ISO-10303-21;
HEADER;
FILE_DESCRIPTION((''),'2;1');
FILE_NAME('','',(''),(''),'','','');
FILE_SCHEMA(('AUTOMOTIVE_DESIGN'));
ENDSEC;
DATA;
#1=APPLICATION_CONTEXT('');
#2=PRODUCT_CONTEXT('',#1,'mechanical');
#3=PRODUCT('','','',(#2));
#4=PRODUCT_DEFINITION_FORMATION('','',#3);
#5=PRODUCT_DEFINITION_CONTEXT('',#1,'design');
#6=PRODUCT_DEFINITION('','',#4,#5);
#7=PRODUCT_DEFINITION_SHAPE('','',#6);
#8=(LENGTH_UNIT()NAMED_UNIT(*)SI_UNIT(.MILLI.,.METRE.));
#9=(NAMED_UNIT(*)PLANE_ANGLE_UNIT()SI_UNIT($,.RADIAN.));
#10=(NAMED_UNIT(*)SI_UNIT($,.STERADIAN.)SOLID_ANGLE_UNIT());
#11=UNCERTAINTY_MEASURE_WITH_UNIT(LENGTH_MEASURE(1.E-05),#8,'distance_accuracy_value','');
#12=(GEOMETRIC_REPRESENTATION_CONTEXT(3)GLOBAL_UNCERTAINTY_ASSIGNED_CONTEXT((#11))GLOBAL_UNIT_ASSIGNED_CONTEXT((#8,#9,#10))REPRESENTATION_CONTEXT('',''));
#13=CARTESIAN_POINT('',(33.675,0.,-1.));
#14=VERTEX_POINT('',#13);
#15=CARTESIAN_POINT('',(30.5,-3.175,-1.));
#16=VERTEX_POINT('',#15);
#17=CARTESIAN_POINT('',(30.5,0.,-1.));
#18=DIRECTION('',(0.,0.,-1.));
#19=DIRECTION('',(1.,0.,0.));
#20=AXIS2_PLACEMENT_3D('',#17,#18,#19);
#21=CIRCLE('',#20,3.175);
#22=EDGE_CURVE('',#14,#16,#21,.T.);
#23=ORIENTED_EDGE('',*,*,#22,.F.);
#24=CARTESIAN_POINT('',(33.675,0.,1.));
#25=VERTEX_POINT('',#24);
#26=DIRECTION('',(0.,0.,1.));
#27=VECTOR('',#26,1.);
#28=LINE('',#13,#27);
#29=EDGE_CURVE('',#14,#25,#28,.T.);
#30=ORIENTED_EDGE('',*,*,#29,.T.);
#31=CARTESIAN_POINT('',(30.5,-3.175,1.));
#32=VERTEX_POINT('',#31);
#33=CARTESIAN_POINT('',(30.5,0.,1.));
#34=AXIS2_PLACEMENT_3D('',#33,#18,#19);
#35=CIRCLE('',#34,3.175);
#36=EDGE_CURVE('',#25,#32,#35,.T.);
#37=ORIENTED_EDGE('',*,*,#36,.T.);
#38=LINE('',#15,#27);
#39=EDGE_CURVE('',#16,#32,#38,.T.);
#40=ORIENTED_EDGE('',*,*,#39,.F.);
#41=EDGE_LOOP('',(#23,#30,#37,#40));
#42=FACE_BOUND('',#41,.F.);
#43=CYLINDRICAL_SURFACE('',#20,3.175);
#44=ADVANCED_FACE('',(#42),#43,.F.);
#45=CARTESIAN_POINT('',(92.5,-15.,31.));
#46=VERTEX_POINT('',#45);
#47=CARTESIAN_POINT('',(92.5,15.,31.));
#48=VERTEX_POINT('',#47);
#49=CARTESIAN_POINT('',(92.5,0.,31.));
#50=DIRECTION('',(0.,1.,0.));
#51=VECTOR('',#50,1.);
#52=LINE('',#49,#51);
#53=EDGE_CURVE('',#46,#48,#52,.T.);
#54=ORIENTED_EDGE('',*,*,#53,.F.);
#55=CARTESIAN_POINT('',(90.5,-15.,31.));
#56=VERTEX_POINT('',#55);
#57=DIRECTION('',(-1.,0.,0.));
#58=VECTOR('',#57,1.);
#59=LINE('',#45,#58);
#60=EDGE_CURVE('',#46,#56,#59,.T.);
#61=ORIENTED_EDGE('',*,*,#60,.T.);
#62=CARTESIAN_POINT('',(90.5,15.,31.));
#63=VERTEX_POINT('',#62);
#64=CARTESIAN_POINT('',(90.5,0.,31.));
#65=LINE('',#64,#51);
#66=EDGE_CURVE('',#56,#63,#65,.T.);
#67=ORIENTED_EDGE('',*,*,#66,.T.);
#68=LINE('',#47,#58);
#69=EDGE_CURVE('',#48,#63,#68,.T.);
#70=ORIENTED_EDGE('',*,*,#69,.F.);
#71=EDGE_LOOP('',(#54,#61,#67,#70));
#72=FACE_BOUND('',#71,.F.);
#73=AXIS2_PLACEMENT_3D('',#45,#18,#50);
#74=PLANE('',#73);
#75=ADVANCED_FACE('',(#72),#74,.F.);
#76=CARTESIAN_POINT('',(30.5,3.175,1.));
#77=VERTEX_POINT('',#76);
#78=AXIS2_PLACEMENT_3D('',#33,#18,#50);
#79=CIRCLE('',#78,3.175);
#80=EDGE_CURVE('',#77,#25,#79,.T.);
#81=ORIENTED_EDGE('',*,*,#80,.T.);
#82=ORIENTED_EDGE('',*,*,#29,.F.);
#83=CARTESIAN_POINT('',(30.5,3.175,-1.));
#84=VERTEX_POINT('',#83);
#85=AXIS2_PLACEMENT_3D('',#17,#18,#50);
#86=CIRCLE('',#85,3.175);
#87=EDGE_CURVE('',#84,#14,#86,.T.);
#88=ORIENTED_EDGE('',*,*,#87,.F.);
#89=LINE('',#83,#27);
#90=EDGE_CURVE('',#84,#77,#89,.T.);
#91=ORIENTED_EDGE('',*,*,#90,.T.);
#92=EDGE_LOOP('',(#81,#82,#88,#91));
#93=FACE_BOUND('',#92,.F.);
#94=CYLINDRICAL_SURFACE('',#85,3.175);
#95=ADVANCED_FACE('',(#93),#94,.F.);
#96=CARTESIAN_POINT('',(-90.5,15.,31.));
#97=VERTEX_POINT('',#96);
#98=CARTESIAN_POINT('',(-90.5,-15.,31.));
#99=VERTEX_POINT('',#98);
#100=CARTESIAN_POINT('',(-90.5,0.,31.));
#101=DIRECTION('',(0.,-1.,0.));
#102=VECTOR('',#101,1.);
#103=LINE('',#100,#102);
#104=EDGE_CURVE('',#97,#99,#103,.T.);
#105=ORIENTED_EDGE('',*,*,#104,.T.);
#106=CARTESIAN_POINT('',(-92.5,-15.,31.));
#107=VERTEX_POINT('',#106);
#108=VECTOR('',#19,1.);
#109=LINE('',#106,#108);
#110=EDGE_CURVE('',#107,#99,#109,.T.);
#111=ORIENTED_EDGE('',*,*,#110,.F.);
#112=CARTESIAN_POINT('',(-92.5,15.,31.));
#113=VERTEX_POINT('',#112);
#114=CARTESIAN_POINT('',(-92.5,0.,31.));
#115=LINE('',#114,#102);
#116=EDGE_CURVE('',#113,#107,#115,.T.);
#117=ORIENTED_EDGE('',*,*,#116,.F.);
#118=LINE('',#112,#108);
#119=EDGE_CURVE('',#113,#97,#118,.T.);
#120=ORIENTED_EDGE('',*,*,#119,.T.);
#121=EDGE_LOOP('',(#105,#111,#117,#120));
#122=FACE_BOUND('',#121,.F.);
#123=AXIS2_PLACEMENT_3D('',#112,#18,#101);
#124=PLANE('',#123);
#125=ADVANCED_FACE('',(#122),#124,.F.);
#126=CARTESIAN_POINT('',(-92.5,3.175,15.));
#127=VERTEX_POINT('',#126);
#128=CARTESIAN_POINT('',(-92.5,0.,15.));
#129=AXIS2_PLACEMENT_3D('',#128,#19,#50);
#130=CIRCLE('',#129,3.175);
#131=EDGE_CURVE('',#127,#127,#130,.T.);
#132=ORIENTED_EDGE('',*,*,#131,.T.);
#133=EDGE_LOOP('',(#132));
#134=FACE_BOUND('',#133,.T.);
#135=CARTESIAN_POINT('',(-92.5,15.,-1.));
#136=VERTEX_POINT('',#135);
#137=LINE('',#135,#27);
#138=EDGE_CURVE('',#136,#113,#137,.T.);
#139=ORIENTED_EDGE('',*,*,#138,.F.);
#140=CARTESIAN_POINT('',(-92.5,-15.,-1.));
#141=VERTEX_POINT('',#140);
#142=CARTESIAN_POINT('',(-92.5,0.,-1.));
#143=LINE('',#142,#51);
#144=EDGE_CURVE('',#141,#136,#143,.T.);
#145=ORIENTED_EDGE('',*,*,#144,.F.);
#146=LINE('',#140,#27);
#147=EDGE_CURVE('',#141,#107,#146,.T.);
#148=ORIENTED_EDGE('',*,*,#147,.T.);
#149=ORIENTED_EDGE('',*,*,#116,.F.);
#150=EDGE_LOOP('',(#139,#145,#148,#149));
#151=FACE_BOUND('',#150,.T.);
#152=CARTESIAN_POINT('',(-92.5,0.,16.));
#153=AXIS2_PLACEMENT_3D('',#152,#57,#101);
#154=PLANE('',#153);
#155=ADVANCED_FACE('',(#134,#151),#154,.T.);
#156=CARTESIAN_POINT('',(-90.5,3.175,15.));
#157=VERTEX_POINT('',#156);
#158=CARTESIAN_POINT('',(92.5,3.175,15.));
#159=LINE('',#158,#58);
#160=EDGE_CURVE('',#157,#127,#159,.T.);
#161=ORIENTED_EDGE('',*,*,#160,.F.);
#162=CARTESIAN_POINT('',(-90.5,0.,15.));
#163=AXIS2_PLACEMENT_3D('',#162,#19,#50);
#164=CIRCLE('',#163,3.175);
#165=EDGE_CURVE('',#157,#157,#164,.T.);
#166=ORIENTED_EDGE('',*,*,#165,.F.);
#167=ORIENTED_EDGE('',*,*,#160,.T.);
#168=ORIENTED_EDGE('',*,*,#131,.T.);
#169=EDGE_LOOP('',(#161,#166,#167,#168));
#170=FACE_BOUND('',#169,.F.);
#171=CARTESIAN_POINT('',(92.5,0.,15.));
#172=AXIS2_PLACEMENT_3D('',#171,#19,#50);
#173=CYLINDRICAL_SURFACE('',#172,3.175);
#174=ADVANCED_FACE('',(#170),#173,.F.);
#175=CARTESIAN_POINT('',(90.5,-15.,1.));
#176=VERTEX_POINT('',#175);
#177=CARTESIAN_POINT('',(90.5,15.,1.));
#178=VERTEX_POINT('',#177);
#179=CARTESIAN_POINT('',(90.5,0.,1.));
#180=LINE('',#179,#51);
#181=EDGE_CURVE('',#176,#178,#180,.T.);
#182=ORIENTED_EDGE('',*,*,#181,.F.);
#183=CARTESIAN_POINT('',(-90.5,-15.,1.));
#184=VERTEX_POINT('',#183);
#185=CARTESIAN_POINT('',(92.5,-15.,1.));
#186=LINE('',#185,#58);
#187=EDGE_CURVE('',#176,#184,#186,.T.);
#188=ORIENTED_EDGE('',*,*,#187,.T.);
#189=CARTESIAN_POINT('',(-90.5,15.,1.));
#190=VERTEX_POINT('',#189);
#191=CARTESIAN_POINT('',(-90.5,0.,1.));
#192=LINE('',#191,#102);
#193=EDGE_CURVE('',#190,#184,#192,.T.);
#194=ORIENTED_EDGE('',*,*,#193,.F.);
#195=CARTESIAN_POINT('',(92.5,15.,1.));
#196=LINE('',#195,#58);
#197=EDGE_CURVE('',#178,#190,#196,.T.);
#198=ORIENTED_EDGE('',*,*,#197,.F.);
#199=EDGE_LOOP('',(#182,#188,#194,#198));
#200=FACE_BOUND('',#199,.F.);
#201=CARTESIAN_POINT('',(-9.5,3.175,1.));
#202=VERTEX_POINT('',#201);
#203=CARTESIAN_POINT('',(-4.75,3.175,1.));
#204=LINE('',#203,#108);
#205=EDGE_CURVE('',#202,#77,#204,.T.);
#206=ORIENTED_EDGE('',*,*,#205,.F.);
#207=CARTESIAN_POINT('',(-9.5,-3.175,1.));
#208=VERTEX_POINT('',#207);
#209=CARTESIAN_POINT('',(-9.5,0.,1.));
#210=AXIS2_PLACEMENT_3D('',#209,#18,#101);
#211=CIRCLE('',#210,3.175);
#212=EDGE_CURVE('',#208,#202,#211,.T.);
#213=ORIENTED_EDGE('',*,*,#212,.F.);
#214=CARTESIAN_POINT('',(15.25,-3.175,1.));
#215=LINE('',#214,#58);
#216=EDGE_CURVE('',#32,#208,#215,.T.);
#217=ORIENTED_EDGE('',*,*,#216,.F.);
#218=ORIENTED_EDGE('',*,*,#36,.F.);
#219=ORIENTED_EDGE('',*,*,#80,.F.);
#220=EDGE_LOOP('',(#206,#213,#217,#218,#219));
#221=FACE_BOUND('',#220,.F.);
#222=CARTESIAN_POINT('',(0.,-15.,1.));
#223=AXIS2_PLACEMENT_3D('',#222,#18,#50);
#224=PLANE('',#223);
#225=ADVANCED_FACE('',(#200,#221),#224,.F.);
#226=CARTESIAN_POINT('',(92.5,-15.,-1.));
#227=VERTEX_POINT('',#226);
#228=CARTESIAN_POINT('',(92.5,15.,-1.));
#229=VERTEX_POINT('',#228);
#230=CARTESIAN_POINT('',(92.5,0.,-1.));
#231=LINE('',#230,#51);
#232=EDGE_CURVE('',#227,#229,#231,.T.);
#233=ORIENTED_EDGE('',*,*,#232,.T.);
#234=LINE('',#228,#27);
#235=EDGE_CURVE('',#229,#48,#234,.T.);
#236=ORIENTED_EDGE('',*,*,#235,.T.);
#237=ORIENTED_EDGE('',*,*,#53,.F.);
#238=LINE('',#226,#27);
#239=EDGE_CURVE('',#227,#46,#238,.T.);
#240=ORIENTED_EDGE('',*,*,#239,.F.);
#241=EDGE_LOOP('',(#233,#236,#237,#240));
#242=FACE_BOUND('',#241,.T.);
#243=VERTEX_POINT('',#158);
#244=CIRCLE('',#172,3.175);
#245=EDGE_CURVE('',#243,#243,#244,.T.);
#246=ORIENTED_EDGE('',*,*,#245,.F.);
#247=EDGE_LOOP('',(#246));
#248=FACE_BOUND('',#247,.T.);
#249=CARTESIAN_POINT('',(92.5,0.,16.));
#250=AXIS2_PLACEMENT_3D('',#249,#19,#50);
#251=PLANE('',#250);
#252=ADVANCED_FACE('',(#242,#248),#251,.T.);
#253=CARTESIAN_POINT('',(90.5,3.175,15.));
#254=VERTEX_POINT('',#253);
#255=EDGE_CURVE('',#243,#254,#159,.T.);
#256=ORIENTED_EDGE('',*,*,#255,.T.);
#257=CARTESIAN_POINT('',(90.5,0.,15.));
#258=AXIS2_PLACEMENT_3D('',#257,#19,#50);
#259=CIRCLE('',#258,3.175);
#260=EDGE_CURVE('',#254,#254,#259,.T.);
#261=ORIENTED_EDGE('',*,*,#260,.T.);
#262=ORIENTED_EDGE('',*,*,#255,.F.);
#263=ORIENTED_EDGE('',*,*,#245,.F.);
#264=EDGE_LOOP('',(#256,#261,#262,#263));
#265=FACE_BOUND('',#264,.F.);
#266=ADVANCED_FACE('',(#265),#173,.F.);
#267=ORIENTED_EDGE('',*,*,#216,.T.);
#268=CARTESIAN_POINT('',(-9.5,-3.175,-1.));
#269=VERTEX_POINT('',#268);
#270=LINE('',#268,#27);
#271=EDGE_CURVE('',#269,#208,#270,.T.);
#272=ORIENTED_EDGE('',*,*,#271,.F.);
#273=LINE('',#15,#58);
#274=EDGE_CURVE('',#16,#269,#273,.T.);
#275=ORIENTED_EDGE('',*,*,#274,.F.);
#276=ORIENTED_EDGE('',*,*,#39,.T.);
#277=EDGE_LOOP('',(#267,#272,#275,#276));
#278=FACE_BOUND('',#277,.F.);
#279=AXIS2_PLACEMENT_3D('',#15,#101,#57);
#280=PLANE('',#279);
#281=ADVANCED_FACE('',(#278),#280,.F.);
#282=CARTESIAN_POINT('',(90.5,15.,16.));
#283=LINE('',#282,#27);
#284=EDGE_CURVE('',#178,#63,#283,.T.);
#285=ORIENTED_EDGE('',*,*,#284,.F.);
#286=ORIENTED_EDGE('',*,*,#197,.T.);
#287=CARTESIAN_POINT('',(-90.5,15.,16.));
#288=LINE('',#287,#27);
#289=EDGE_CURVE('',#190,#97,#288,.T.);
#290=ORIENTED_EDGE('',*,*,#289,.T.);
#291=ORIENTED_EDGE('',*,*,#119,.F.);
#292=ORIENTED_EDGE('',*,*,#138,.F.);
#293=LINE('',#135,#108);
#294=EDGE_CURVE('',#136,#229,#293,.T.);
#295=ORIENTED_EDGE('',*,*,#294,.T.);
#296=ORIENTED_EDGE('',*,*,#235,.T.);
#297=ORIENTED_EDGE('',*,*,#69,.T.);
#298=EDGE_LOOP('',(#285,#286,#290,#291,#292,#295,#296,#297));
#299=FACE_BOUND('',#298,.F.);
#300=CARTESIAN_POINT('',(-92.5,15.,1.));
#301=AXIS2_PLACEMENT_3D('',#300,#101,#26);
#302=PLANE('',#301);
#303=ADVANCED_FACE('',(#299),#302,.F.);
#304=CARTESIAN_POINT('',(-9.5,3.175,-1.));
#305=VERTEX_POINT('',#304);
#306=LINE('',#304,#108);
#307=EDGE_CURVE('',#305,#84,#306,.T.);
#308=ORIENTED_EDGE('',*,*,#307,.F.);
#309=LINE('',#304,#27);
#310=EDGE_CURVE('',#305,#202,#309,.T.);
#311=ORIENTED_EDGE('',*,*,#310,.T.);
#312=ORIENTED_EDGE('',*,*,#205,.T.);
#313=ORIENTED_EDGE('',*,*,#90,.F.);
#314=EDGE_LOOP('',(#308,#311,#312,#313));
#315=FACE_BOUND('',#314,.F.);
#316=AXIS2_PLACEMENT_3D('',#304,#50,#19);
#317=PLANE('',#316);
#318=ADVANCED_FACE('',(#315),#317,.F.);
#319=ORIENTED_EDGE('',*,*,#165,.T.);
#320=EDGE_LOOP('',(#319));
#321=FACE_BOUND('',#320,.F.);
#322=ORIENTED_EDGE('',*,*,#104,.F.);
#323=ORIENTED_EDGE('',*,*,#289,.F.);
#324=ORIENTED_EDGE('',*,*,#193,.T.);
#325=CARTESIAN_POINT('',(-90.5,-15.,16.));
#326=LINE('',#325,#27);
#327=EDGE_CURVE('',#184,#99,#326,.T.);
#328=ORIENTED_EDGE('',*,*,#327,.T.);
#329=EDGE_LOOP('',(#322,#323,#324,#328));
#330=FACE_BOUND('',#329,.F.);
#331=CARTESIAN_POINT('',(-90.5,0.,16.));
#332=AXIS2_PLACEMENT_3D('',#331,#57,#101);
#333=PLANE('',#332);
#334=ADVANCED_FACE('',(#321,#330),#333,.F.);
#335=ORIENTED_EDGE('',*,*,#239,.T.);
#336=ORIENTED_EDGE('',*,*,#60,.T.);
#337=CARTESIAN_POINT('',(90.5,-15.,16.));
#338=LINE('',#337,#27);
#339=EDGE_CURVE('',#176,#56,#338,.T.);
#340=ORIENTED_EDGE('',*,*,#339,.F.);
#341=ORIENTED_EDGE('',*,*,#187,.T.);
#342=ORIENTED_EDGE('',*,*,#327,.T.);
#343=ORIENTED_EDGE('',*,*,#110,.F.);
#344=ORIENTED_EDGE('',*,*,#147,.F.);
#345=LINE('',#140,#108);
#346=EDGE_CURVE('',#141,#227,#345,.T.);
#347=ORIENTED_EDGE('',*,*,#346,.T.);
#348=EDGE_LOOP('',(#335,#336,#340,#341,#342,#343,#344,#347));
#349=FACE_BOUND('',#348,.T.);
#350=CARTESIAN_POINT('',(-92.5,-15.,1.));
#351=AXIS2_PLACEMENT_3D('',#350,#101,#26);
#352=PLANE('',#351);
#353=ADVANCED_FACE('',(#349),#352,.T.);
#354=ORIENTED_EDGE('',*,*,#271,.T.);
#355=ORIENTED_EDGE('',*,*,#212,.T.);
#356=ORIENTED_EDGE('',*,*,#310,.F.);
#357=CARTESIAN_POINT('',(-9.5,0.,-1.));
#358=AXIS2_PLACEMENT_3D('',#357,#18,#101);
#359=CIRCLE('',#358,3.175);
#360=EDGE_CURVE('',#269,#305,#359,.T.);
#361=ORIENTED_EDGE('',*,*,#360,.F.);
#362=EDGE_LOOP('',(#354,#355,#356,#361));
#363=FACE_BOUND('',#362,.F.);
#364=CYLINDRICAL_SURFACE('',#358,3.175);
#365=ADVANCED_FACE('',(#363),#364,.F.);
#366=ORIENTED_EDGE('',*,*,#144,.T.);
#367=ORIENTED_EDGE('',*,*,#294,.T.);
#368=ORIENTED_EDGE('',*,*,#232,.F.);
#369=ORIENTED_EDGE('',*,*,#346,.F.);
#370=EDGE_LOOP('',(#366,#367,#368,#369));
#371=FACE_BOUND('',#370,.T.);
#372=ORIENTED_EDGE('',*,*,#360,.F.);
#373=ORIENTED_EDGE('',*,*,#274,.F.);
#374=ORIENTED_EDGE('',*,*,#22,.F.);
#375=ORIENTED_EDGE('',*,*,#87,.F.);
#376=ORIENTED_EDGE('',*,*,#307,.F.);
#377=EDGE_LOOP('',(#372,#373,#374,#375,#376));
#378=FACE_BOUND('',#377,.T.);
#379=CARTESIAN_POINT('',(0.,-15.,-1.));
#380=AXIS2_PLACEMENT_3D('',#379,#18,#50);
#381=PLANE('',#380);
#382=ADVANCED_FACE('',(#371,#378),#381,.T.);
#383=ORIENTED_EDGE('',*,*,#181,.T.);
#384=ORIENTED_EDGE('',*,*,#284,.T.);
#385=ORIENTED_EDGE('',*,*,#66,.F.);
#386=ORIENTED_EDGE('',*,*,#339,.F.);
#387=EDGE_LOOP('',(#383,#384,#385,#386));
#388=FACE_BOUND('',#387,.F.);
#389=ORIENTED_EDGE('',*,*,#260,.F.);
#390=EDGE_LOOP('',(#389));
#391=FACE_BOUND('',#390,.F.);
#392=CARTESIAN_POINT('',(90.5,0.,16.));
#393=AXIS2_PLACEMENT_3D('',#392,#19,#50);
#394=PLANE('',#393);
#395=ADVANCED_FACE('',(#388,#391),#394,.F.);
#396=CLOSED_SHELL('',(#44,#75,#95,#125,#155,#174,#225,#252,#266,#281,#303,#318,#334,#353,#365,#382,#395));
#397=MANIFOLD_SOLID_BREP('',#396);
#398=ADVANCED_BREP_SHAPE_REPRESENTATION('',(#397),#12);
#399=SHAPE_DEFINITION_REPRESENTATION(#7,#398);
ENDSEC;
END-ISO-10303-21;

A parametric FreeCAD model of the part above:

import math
import FreeCAD as App
import Part
import Sketcher
Q = App.Units.Quantity

doc = App.newDocument("Part")
params = doc.addObject("Spreadsheet::Sheet", "Params")
for row, (alias, value) in enumerate([
    ("sketch1_width", "30 mm"),
    ("sketch1_height", "2 mm"),
    ("pad1_length", "185 mm"),
    ("sketch2_width", "30 mm"),
    ("pad2_length", "2 mm"),
    ("sketch3_width", "30 mm"),
    ("pad3_length", "2 mm"),
    ("sketch4_diameter", "6.35 mm"),
    ("pocket1_length", "250 mm"),
    ("sketch5_width", "40 mm"),
    ("pocket2_length", "25 mm"),
], start=1):
    params.set(f"A{row}", alias)
    params.set(f"B{row}", "=" + value)
    params.setAlias(f"B{row}", alias)

body = doc.addObject("PartDesign::Body", "Body")

# Sketch on YZ plane
sketch1 = doc.addObject("Sketcher::SketchObject", "Sketch")
body.addObject(sketch1)
sketch1.AttachmentSupport = (doc.YZ_Plane, [""])
sketch1.MapMode = "FlatFace"
sketch1.addGeometry(Part.LineSegment(App.Vector(-15, 1, 0), App.Vector(-15, -1, 0)), False)
sketch1.addGeometry(Part.LineSegment(App.Vector(-15, -1, 0), App.Vector(15, -1, 0)), False)
sketch1.addGeometry(Part.LineSegment(App.Vector(15, -1, 0), App.Vector(15, 1, 0)), False)
sketch1.addGeometry(Part.LineSegment(App.Vector(15, 1, 0), App.Vector(-15, 1, 0)), False)
sketch1.addConstraint(Sketcher.Constraint("Coincident", 0, 2, 1, 1))
sketch1.addConstraint(Sketcher.Constraint("Coincident", 1, 2, 2, 1))
sketch1.addConstraint(Sketcher.Constraint("Coincident", 2, 2, 3, 1))
sketch1.addConstraint(Sketcher.Constraint("Coincident", 3, 2, 0, 1))
sketch1.addConstraint(Sketcher.Constraint("Vertical", 0))
sketch1.addConstraint(Sketcher.Constraint("Horizontal", 1))
sketch1.addConstraint(Sketcher.Constraint("Vertical", 2))
sketch1.addConstraint(Sketcher.Constraint("Horizontal", 3))
sketch1.addConstraint(Sketcher.Constraint("Symmetric", 0, 2, 2, 2, -1, 1))
sketch1.addConstraint(Sketcher.Constraint("DistanceX", 1, 1, 1, 2, Q("30 mm")))
sketch1.addConstraint(Sketcher.Constraint("DistanceY", 0, 2, 0, 1, Q("2 mm")))
sketch1.setExpression("Constraints[9]", "Params.sketch1_width")
sketch1.setExpression("Constraints[10]", "Params.sketch1_height")
pad1 = doc.addObject("PartDesign::Pad", "Pad")
body.addObject(pad1)
pad1.Profile = sketch1
pad1.setExpression("Length", "Params.pad1_length")
pad1.Midplane = True

# Sketch on YZ plane
sketch2 = doc.addObject("Sketcher::SketchObject", "Sketch001")
body.addObject(sketch2)
sketch2.AttachmentSupport = (doc.YZ_Plane, [""])
sketch2.MapMode = "FlatFace"
sketch2.AttachmentOffset = App.Placement(App.Vector(0, 0, 92.5), App.Rotation())
sketch2.addGeometry(Part.LineSegment(App.Vector(-15, 31, 0), App.Vector(-15, 1, 0)), False)
sketch2.addGeometry(Part.LineSegment(App.Vector(-15, 1, 0), App.Vector(15, 1, 0)), False)
sketch2.addGeometry(Part.LineSegment(App.Vector(15, 1, 0), App.Vector(15, 31, 0)), False)
sketch2.addGeometry(Part.LineSegment(App.Vector(15, 31, 0), App.Vector(-15, 31, 0)), False)
sketch2.addConstraint(Sketcher.Constraint("Coincident", 0, 2, 1, 1))
sketch2.addConstraint(Sketcher.Constraint("Coincident", 1, 2, 2, 1))
sketch2.addConstraint(Sketcher.Constraint("Coincident", 2, 2, 3, 1))
sketch2.addConstraint(Sketcher.Constraint("Coincident", 3, 2, 0, 1))
sketch2.addConstraint(Sketcher.Constraint("Vertical", 0))
sketch2.addConstraint(Sketcher.Constraint("Horizontal", 1))
sketch2.addConstraint(Sketcher.Constraint("Vertical", 2))
sketch2.addConstraint(Sketcher.Constraint("Horizontal", 3))
sketch2.addConstraint(Sketcher.Constraint("Equal", 3, 0))
sketch2.addConstraint(Sketcher.Constraint("DistanceX", 1, 1, 1, 2, Q("30 mm")))
sketch2.addConstraint(Sketcher.Constraint("DistanceX", 0, 2, -1, 1, Q("15 mm")))
sketch2.addConstraint(Sketcher.Constraint("DistanceY", -1, 1, 0, 2, Q("1 mm")))
sketch2.setExpression("Constraints[9]", "Params.sketch2_width")
pad2 = doc.addObject("PartDesign::Pad", "Pad001")
body.addObject(pad2)
pad2.Profile = sketch2
pad2.setExpression("Length", "Params.pad2_length")
pad2.Reversed = True

# Sketch on YZ plane
sketch3 = doc.addObject("Sketcher::SketchObject", "Sketch002")
body.addObject(sketch3)
sketch3.AttachmentSupport = (doc.YZ_Plane, [""])
sketch3.MapMode = "FlatFace"
sketch3.AttachmentOffset = App.Placement(App.Vector(0, 0, -92.5), App.Rotation())
sketch3.addGeometry(Part.LineSegment(App.Vector(15, 31, 0), App.Vector(15, 1, 0)), False)
sketch3.addGeometry(Part.LineSegment(App.Vector(15, 1, 0), App.Vector(-15, 1, 0)), False)
sketch3.addGeometry(Part.LineSegment(App.Vector(-15, 1, 0), App.Vector(-15, 31, 0)), False)
sketch3.addGeometry(Part.LineSegment(App.Vector(-15, 31, 0), App.Vector(15, 31, 0)), False)
sketch3.addConstraint(Sketcher.Constraint("Coincident", 0, 2, 1, 1))
sketch3.addConstraint(Sketcher.Constraint("Coincident", 1, 2, 2, 1))
sketch3.addConstraint(Sketcher.Constraint("Coincident", 2, 2, 3, 1))
sketch3.addConstraint(Sketcher.Constraint("Coincident", 3, 2, 0, 1))
sketch3.addConstraint(Sketcher.Constraint("Vertical", 0))
sketch3.addConstraint(Sketcher.Constraint("Horizontal", 1))
sketch3.addConstraint(Sketcher.Constraint("Vertical", 2))
sketch3.addConstraint(Sketcher.Constraint("Horizontal", 3))
sketch3.addConstraint(Sketcher.Constraint("Equal", 3, 0))
sketch3.addConstraint(Sketcher.Constraint("DistanceX", 1, 2, 1, 1, Q("30 mm")))
sketch3.addConstraint(Sketcher.Constraint("DistanceX", -1, 1, 0, 2, Q("15 mm")))
sketch3.addConstraint(Sketcher.Constraint("DistanceY", -1, 1, 0, 2, Q("1 mm")))
sketch3.setExpression("Constraints[9]", "Params.sketch3_width")
pad3 = doc.addObject("PartDesign::Pad", "Pad002")
body.addObject(pad3)
pad3.Profile = sketch3
pad3.setExpression("Length", "Params.pad3_length")

# Sketch on YZ plane
sketch4 = doc.addObject("Sketcher::SketchObject", "Sketch003")
body.addObject(sketch4)
sketch4.AttachmentSupport = (doc.YZ_Plane, [""])
sketch4.MapMode = "FlatFace"
sketch4.AttachmentOffset = App.Placement(App.Vector(0, 0, 92.5), App.Rotation())
sketch4.addGeometry(Part.Circle(App.Vector(0, 15, 0), App.Vector(0, 0, 1), 3.175), False)
sketch4.addConstraint(Sketcher.Constraint("PointOnObject", 0, 3, -2))
sketch4.addConstraint(Sketcher.Constraint("Diameter", 0, Q("6.35 mm")))
sketch4.addConstraint(Sketcher.Constraint("DistanceY", -1, 1, 0, 3, Q("15 mm")))
sketch4.setExpression("Constraints[1]", "Params.sketch4_diameter")
pocket1 = doc.addObject("PartDesign::Pocket", "Pocket")
body.addObject(pocket1)
pocket1.Profile = sketch4
pocket1.setExpression("Length", "Params.pocket1_length")

# Sketch on XY plane
sketch5 = doc.addObject("Sketcher::SketchObject", "Sketch004")
body.addObject(sketch5)
sketch5.AttachmentSupport = (doc.XY_Plane, [""])
sketch5.MapMode = "FlatFace"
sketch5.AttachmentOffset = App.Placement(App.Vector(0, 0, -1), App.Rotation())
sketch5.addGeometry(Part.ArcOfCircle(Part.Circle(App.Vector(30.5, 0, 0), App.Vector(0, 0, 1), 3.175), math.radians(0), math.radians(90)), False)
sketch5.addGeometry(Part.ArcOfCircle(Part.Circle(App.Vector(30.5, 0, 0), App.Vector(0, 0, 1), 3.175), math.radians(-90), math.radians(0)), False)
sketch5.addGeometry(Part.LineSegment(App.Vector(30.5, -3.175, 0), App.Vector(-9.5, -3.175, 0)), False)
sketch5.addGeometry(Part.ArcOfCircle(Part.Circle(App.Vector(-9.5, 0, 0), App.Vector(0, 0, 1), 3.175), math.radians(90), math.radians(270)), False)
sketch5.addGeometry(Part.LineSegment(App.Vector(-9.5, 3.175, 0), App.Vector(30.5, 3.175, 0)), False)
sketch5.addConstraint(Sketcher.Constraint("Tangent", 0, 1, 1, 2))
sketch5.addConstraint(Sketcher.Constraint("Tangent", 1, 1, 2, 1))
sketch5.addConstraint(Sketcher.Constraint("Tangent", 2, 2, 3, 2))
sketch5.addConstraint(Sketcher.Constraint("Tangent", 3, 1, 4, 1))
sketch5.addConstraint(Sketcher.Constraint("Tangent", 4, 2, 0, 2))
sketch5.addConstraint(Sketcher.Constraint("Horizontal", 2))
sketch5.addConstraint(Sketcher.Constraint("Horizontal", 4))
sketch5.addConstraint(Sketcher.Constraint("Equal", 0, 1))
sketch5.addConstraint(Sketcher.Constraint("PointOnObject", 0, 3, -1))
sketch5.addConstraint(Sketcher.Constraint("PointOnObject", 0, 1, -1))
sketch5.addConstraint(Sketcher.Constraint("DistanceX", 2, 2, 2, 1, Q("40 mm")))
sketch5.addConstraint(Sketcher.Constraint("Radius", 0, Q("3.175 mm")))
sketch5.addConstraint(Sketcher.Constraint("DistanceX", -1, 1, 0, 3, Q("30.5 mm")))
sketch5.setExpression("Constraints[10]", "Params.sketch5_width")
pocket2 = doc.addObject("PartDesign::Pocket", "Pocket001")
body.addObject(pocket2)
pocket2.Profile = sketch5
pocket2.setExpression("Length", "Params.pocket2_length")
pocket2.Reversed = True

doc.recompute()
